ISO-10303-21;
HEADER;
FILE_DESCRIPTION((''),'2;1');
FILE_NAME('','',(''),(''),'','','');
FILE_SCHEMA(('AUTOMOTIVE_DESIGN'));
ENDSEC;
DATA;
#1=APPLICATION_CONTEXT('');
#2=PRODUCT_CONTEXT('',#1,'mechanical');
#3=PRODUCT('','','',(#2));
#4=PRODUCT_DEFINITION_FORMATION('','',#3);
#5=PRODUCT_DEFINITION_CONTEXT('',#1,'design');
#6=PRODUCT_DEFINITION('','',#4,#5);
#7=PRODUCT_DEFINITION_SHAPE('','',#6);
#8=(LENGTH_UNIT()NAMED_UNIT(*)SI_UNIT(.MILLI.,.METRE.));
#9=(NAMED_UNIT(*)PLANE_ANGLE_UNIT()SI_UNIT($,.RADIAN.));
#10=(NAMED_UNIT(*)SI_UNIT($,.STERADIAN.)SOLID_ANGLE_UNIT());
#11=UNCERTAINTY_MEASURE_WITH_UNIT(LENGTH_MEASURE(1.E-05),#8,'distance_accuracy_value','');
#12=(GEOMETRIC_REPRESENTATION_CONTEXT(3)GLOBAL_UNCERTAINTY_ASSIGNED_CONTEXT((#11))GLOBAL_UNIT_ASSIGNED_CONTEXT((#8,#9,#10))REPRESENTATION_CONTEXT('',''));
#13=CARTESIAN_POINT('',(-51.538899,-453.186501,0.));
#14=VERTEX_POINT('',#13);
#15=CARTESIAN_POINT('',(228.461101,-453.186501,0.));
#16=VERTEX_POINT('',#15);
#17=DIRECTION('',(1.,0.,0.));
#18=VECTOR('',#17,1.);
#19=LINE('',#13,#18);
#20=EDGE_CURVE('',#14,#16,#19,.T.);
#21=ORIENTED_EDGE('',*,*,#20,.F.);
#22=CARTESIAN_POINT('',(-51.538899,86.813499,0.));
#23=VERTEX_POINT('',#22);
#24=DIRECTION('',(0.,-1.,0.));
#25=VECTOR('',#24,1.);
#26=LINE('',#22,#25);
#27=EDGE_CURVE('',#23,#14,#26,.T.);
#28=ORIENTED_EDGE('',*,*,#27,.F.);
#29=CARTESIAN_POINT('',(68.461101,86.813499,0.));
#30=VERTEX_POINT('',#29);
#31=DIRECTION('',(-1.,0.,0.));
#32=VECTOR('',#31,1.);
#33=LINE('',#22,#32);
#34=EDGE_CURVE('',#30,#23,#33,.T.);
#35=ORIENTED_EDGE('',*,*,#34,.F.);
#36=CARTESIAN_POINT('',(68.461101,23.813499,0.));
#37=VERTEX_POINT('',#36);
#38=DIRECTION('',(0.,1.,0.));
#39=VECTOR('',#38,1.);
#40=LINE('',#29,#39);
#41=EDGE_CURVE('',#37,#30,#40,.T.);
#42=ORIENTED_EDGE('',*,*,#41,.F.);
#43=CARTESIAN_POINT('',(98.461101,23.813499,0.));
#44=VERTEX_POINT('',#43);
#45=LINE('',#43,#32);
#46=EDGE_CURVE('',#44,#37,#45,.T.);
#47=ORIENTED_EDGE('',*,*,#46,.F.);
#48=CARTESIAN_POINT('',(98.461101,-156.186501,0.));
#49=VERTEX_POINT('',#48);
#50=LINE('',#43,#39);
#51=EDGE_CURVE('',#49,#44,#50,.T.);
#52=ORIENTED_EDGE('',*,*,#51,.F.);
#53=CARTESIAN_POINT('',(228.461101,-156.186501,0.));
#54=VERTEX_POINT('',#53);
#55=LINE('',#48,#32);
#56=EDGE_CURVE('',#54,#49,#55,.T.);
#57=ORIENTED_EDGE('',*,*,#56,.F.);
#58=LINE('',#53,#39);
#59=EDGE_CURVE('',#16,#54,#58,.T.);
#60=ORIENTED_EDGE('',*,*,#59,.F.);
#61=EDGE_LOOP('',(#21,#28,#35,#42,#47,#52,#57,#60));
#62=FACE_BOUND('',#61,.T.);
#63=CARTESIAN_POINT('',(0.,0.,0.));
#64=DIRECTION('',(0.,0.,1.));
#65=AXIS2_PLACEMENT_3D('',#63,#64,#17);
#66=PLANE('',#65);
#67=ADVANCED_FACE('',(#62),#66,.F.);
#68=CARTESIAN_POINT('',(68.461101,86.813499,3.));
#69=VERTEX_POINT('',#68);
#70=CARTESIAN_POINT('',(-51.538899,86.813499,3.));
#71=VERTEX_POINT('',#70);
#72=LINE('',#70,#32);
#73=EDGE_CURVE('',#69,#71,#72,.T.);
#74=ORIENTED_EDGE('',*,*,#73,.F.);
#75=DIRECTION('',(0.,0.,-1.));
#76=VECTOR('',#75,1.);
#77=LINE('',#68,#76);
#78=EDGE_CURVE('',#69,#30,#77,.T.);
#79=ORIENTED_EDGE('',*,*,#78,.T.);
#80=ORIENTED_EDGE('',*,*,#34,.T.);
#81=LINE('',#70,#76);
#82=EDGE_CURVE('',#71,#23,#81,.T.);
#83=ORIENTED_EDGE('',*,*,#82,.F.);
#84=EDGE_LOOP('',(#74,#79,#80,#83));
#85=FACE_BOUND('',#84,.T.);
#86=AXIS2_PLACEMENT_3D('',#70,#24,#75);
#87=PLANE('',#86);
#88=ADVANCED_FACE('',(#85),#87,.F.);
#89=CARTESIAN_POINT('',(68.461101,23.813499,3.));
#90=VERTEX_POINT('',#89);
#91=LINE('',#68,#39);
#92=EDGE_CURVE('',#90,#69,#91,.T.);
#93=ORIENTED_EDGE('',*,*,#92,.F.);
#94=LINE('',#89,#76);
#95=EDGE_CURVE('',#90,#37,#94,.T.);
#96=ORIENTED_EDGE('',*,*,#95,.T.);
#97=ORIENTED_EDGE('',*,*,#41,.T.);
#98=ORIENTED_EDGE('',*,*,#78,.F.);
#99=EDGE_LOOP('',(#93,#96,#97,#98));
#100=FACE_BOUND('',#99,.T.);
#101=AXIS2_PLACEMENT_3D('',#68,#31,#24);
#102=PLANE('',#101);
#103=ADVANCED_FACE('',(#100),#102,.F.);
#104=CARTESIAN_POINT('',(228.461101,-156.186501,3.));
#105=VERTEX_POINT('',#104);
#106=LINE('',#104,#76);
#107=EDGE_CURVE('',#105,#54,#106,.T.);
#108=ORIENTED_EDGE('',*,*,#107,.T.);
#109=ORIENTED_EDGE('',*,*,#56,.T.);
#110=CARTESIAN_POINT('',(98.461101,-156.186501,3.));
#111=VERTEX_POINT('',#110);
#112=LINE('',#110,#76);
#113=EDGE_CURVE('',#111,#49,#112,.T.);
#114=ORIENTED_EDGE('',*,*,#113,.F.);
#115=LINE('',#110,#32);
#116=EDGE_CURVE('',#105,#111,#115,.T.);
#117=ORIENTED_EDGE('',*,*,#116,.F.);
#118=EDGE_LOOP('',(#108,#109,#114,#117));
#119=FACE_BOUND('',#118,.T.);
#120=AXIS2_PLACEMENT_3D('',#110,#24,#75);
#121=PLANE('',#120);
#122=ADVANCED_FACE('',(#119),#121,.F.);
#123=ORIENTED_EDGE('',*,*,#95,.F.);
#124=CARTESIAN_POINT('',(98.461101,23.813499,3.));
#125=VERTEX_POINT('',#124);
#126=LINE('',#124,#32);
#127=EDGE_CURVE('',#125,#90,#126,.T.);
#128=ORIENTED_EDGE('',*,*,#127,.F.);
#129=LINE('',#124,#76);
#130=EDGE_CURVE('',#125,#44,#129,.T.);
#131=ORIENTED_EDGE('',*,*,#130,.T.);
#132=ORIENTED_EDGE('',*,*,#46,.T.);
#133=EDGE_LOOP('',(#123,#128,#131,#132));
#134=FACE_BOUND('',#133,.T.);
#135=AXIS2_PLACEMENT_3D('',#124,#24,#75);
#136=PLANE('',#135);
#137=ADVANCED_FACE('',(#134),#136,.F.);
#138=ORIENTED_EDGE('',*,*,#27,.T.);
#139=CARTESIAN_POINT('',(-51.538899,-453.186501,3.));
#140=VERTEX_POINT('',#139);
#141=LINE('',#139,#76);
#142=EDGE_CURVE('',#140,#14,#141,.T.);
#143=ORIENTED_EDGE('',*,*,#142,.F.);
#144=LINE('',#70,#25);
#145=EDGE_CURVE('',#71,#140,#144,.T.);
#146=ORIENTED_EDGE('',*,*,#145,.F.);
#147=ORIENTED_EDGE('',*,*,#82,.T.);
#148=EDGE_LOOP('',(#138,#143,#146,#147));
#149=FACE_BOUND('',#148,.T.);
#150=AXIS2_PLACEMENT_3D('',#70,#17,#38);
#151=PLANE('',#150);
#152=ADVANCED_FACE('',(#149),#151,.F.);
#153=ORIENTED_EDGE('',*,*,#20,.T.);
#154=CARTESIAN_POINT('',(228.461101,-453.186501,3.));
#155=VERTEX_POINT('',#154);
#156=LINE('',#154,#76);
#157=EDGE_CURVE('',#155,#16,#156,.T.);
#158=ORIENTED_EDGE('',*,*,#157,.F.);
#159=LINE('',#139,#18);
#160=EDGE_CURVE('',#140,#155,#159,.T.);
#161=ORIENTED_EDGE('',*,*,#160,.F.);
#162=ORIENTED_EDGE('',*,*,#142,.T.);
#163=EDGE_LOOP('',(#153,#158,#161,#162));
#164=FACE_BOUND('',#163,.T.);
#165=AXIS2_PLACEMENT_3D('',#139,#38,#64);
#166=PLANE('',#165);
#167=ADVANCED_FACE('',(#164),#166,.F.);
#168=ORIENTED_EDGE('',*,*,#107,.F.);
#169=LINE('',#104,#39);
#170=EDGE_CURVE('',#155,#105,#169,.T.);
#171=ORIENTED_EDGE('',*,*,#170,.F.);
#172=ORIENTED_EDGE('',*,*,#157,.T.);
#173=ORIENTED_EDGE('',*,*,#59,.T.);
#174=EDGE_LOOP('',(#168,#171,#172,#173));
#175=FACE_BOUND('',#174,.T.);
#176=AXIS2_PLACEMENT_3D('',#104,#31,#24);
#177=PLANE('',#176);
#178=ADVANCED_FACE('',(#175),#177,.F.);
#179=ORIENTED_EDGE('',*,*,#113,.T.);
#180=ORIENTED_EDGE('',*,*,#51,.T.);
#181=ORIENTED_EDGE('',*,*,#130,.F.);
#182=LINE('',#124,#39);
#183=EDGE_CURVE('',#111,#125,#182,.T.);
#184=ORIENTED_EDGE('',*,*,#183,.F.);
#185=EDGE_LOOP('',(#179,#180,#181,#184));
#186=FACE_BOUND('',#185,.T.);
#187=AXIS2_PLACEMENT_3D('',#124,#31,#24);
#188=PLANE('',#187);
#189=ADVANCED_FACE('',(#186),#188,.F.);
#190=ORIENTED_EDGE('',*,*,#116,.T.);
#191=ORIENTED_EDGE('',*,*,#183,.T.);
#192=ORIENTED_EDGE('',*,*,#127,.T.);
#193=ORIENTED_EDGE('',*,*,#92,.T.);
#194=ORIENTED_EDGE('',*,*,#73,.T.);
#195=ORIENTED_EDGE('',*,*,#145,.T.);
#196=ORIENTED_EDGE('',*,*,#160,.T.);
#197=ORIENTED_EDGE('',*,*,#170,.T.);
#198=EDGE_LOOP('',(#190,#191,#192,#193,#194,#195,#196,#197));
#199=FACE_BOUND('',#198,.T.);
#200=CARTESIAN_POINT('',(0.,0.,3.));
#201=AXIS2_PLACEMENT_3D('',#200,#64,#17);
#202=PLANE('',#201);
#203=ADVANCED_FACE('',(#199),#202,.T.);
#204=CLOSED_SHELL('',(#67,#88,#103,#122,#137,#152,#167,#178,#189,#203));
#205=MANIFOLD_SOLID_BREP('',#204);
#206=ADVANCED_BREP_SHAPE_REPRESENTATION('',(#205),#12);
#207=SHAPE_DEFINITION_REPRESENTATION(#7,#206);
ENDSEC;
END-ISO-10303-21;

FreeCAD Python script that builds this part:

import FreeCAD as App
import Part
import Sketcher

V = App.Vector


def add_polygon(sketch, points):
    """Adds a closed chain of lines whose ends are joined by coincident constraints."""
    first, n = sketch.GeometryCount, len(points)
    for a, b in zip(points, points[1:] + points[:1]):
        sketch.addGeometry(Part.LineSegment(App.Vector(*a, 0), App.Vector(*b, 0)), False)
    for i in range(n):
        sketch.addConstraint(Sketcher.Constraint("Coincident", first + i, 2, first + (i + 1) % n, 1))

doc = App.newDocument("Part")
body = doc.addObject("PartDesign::Body", "Body")

# Sketch on XY plane
sketch1 = doc.addObject("Sketcher::SketchObject", "Sketch")
body.addObject(sketch1)
sketch1.AttachmentSupport = (doc.XY_Plane, [""])
sketch1.MapMode = "FlatFace"
add_polygon(sketch1, [(228, -453), (228, -156), (98, -156), (98, 24), (68, 24), (68, 87), (-52, 87), (-52, -453)])  # lines 0-7
sketch1.addConstraint([
    Sketcher.Constraint("Vertical", 0),
    Sketcher.Constraint("Horizontal", 1),
    Sketcher.Constraint("Vertical", 2),
    Sketcher.Constraint("Horizontal", 3),
    Sketcher.Constraint("Vertical", 4),
    Sketcher.Constraint("Horizontal", 5),
    Sketcher.Constraint("Vertical", 6),
    Sketcher.Constraint("Horizontal", 7),
    Sketcher.Constraint("DistanceX", 1, 2, 1, 1, 130.0),
    Sketcher.Constraint("DistanceX", 3, 2, 3, 1, 30.0),
    Sketcher.Constraint("DistanceX", 5, 2, 5, 1, 120.0),
    Sketcher.Constraint("DistanceY", 0, 1, 0, 2, 297.0),
    Sketcher.Constraint("DistanceY", 2, 1, 2, 2, 180.0),
    Sketcher.Constraint("DistanceY", 4, 1, 4, 2, 63.0),
    Sketcher.Constraint("DistanceX", -1, 1, 0, 2, 228.461101),
    Sketcher.Constraint("DistanceY", 0, 2, -1, 1, 156.186501),
])
pad1 = doc.addObject("PartDesign::Pad", "Pad")
body.addObject(pad1)
pad1.Profile = sketch1
pad1.Length = 3

doc.recompute()
